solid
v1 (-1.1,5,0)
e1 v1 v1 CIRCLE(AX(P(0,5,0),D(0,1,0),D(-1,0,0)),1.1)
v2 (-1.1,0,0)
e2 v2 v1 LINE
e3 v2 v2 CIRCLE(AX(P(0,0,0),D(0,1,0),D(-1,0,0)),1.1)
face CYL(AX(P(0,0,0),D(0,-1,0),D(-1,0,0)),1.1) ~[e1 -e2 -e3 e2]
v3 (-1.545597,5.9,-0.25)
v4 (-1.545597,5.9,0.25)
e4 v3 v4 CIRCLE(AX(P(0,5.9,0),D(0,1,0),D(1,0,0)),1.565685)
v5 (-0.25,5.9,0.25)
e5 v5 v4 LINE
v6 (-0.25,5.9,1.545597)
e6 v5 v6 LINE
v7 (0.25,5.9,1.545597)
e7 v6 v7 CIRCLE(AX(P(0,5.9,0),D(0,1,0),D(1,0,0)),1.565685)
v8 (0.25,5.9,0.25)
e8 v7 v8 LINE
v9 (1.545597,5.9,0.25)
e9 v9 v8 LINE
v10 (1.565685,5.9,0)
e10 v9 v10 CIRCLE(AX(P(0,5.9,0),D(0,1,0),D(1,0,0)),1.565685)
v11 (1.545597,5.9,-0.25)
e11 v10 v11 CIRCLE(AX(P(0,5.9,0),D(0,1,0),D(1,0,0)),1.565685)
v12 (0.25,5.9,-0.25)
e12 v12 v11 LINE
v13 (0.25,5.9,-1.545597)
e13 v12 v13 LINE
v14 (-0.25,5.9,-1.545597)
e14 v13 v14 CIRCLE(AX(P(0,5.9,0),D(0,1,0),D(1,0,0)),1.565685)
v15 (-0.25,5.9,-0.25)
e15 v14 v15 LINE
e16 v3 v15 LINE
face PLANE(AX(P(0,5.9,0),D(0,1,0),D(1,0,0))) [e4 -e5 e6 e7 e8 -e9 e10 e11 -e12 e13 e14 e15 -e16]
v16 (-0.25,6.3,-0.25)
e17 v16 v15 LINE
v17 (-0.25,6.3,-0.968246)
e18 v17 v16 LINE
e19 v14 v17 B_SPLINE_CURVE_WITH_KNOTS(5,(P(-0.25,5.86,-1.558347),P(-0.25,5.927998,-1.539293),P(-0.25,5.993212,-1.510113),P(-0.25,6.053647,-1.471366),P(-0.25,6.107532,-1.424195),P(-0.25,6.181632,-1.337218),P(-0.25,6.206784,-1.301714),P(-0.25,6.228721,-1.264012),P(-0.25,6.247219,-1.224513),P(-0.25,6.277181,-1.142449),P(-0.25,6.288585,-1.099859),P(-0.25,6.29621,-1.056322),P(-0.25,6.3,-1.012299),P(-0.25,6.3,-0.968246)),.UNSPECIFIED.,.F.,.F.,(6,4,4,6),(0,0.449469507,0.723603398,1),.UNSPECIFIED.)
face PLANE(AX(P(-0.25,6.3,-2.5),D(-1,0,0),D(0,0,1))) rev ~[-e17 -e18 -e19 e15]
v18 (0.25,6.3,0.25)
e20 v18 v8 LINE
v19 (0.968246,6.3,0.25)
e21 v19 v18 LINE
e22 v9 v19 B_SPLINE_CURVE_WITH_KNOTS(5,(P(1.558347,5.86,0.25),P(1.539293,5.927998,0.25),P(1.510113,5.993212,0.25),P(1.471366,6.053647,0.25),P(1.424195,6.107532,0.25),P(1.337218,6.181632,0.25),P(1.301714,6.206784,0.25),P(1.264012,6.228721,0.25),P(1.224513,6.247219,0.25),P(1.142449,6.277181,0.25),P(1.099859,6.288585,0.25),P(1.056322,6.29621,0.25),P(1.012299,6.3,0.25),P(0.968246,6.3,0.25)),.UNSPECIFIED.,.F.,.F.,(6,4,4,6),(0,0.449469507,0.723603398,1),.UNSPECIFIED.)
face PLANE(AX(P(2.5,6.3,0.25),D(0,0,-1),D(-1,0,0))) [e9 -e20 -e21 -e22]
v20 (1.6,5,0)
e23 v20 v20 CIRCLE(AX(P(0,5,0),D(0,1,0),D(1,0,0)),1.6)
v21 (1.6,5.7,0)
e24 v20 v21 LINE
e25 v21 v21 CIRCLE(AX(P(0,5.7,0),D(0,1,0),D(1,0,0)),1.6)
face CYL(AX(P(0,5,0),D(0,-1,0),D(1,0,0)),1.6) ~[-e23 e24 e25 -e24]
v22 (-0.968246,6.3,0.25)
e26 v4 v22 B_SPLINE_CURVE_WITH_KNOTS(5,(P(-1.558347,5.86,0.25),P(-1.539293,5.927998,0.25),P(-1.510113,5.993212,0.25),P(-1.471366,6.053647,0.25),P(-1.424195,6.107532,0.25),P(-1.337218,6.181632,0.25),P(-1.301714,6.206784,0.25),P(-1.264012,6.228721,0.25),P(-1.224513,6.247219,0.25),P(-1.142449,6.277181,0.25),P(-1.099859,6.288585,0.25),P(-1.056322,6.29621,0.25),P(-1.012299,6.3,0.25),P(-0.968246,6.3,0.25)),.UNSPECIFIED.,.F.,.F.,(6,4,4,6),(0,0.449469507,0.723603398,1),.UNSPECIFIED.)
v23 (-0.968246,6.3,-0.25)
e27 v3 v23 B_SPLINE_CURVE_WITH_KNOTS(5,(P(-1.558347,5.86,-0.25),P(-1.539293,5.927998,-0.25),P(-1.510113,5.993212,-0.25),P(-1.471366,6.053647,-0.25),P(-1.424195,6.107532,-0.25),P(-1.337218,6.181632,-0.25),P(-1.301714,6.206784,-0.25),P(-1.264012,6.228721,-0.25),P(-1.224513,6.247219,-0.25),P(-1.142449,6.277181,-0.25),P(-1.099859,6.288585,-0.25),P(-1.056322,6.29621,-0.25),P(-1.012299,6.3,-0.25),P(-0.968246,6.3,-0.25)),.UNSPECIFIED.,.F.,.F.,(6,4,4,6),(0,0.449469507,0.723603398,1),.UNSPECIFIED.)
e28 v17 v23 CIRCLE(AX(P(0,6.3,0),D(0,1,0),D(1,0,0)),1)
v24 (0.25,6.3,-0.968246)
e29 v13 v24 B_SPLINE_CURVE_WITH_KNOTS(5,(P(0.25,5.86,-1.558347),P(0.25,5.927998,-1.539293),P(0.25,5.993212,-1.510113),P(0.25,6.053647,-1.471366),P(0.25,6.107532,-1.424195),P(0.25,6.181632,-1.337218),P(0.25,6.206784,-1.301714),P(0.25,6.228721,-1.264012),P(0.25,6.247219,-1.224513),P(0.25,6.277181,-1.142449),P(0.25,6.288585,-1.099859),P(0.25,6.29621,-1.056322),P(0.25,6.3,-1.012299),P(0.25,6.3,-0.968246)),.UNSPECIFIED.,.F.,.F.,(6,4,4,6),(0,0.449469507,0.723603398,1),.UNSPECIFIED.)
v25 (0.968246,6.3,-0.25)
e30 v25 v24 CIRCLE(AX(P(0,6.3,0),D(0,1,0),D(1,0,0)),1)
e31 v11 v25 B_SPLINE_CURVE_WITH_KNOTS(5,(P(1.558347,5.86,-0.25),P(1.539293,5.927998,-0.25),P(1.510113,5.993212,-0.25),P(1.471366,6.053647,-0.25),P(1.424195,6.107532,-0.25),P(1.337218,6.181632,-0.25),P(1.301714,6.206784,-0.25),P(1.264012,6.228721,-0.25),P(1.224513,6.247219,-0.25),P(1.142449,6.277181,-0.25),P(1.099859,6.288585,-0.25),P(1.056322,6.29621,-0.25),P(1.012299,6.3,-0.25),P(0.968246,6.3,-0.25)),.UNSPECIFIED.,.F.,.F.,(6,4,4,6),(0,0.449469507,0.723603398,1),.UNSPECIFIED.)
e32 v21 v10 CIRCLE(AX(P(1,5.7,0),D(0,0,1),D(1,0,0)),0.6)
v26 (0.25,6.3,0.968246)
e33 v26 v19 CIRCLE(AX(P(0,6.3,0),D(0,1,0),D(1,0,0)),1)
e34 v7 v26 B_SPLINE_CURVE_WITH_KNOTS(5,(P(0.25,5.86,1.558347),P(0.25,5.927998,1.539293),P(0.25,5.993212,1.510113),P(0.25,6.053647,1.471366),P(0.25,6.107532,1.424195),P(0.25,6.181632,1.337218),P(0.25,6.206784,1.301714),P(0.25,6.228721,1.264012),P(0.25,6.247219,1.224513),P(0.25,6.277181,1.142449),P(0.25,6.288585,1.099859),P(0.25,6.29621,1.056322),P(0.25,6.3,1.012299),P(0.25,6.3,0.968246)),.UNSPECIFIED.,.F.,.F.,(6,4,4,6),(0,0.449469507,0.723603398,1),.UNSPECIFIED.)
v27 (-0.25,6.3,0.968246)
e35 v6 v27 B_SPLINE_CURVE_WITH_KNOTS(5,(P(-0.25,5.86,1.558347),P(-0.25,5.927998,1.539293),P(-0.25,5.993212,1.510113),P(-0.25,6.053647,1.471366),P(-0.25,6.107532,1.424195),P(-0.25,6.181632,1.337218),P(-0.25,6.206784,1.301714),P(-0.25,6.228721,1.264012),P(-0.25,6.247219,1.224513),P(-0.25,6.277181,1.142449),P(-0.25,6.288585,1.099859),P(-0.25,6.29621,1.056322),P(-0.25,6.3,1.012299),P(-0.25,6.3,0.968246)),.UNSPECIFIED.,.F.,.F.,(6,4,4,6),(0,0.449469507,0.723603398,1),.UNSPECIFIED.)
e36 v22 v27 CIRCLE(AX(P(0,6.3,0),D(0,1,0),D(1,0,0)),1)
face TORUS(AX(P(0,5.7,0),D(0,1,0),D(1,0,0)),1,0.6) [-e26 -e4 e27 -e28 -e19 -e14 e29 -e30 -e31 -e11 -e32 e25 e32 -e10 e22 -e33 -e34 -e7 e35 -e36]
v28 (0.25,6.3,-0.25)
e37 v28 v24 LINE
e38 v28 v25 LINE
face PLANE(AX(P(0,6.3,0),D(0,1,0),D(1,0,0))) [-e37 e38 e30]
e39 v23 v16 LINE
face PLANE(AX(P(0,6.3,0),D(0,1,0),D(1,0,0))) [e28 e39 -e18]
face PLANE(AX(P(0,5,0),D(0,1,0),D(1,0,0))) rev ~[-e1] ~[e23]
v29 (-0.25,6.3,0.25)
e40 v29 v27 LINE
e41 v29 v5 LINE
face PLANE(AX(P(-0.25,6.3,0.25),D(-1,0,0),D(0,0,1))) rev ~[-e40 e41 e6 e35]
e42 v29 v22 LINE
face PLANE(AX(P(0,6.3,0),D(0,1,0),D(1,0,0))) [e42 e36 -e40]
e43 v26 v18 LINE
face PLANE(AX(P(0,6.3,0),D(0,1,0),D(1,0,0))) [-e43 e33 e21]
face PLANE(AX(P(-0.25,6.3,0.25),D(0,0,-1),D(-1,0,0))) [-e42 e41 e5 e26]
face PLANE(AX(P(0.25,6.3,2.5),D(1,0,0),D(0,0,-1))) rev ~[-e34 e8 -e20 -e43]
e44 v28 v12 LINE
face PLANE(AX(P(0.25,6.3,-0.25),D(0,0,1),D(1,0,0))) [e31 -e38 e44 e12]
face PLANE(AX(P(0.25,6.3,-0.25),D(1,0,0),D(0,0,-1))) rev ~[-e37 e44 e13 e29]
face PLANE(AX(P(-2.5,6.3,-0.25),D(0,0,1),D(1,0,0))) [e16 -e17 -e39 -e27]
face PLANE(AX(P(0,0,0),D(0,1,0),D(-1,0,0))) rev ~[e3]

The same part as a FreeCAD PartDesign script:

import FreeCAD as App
import Part
import Sketcher
from FreeCAD import Vector
Q = App.Units.Quantity


def edges_at(feature, points):
    """Names of the edges that pass closest to the given points."""
    edges = feature.Shape.Edges
    near = lambda p: min(range(len(edges)), key=lambda i: edges[i].distToShape(Part.Vertex(*p))[0])
    return sorted({f"Edge{near(p) + 1}" for p in points})


def add_polygon(sketch, points):
    """Adds a closed chain of lines whose ends are joined by coincident constraints."""
    first, n = sketch.GeometryCount, len(points)
    for a, b in zip(points, points[1:] + points[:1]):
        sketch.addGeometry(Part.LineSegment(App.Vector(*a, 0), App.Vector(*b, 0)), False)
    for i in range(n):
        sketch.addConstraint(Sketcher.Constraint("Coincident", first + i, 2, first + (i + 1) % n, 1))

doc = App.newDocument("Part")
body = doc.addObject("PartDesign::Body", "Body")

sketch1 = body.newObject("Sketcher::SketchObject", "Sketch")
sketch1.AttachmentSupport = (doc.getObject("XZ_Plane"), [""])
sketch1.MapMode = "FlatFace"
sketch1.addGeometry(Part.Circle(Vector(0, 0, 0), Vector(0, 0, 1), 1.1), False)
sketch1.addConstraint([
    Sketcher.Constraint("Coincident", 0, 3, -1, 1),
    Sketcher.Constraint("Diameter", 0, Q("2.2 mm")),
])
pad1 = body.newObject("PartDesign::Pad", "Pad")
pad1.Profile = sketch1
pad1.Length = 5
pad1.Reversed = True

sketch2 = body.newObject("Sketcher::SketchObject", "Sketch001")
sketch2.AttachmentSupport = (doc.getObject("XZ_Plane"), [""])
sketch2.MapMode = "FlatFace"
sketch2.AttachmentOffset = App.Placement(Vector(0, 0, -5), App.Rotation())
sketch2.addGeometry(Part.Circle(Vector(0, 0, 0), Vector(0, 0, 1), 1.6), False)
sketch2.addConstraint([
    Sketcher.Constraint("Coincident", 0, 3, -1, 1),
    Sketcher.Constraint("Diameter", 0, Q("3.2 mm")),
])
pad2 = body.newObject("PartDesign::Pad", "Pad001")
pad2.Profile = sketch2
pad2.Length = 1.3
pad2.Reversed = True
doc.recompute()

fillet = body.newObject("PartDesign::Fillet", "Fillet")
fillet.Base = (pad2, edges_at(pad2, [(-1.6, 6.3, 0)]))
fillet.Radius = 0.6

sketch3 = body.newObject("Sketcher::SketchObject", "Sketch002")
sketch3.AttachmentSupport = (doc.getObject("XZ_Plane"), [""])
sketch3.MapMode = "FlatFace"
sketch3.AttachmentOffset = App.Placement(Vector(0, 0, -6.3), App.Rotation())
add_polygon(sketch3, [(0.2, -0.2), (0.2, -2.5), (-0.2, -2.5), (-0.2, -0.2), (-2.5, -0.2), (-2.5, 0.2), (-0.2, 0.2), (-0.2, 2.5), (0.2, 2.5), (0.2, 0.2), (2.5, 0.2), (2.5, -0.2)])
sketch3.addConstraint([
    Sketcher.Constraint("Vertical", 0),
    Sketcher.Constraint("Horizontal", 1),
    Sketcher.Constraint("Vertical", 2),
    Sketcher.Constraint("Horizontal", 3),
    Sketcher.Constraint("Vertical", 4),
    Sketcher.Constraint("Horizontal", 5),
    Sketcher.Constraint("Vertical", 6),
    Sketcher.Constraint("Horizontal", 7),
    Sketcher.Constraint("Vertical", 8),
    Sketcher.Constraint("Horizontal", 9),
    Sketcher.Constraint("Vertical", 10),
    Sketcher.Constraint("Horizontal", 11),
    Sketcher.Constraint("Symmetric", 0, 2, 6, 2, -1, 1),
    Sketcher.Constraint("Symmetric", 2, 2, 8, 2, -1, 1),
    Sketcher.Constraint("Symmetric", 4, 2, 10, 2, -1, 1),
    Sketcher.Constraint("Symmetric", 5, 2, 8, 2, -2),
    Sketcher.Constraint("Equal", 11, 0),
    Sketcher.Constraint("Equal", 7, 4),
    Sketcher.Constraint("DistanceX", 1, 2, 1, 1, Q("0.5 mm")),
    Sketcher.Constraint("DistanceY", 1, 2, 6, 2, Q("5 mm")),
])
pocket1 = body.newObject("PartDesign::Pocket", "Pocket")
pocket1.Profile = sketch3
pocket1.Length = 0.4
pocket1.Reversed = True

doc.recompute()
